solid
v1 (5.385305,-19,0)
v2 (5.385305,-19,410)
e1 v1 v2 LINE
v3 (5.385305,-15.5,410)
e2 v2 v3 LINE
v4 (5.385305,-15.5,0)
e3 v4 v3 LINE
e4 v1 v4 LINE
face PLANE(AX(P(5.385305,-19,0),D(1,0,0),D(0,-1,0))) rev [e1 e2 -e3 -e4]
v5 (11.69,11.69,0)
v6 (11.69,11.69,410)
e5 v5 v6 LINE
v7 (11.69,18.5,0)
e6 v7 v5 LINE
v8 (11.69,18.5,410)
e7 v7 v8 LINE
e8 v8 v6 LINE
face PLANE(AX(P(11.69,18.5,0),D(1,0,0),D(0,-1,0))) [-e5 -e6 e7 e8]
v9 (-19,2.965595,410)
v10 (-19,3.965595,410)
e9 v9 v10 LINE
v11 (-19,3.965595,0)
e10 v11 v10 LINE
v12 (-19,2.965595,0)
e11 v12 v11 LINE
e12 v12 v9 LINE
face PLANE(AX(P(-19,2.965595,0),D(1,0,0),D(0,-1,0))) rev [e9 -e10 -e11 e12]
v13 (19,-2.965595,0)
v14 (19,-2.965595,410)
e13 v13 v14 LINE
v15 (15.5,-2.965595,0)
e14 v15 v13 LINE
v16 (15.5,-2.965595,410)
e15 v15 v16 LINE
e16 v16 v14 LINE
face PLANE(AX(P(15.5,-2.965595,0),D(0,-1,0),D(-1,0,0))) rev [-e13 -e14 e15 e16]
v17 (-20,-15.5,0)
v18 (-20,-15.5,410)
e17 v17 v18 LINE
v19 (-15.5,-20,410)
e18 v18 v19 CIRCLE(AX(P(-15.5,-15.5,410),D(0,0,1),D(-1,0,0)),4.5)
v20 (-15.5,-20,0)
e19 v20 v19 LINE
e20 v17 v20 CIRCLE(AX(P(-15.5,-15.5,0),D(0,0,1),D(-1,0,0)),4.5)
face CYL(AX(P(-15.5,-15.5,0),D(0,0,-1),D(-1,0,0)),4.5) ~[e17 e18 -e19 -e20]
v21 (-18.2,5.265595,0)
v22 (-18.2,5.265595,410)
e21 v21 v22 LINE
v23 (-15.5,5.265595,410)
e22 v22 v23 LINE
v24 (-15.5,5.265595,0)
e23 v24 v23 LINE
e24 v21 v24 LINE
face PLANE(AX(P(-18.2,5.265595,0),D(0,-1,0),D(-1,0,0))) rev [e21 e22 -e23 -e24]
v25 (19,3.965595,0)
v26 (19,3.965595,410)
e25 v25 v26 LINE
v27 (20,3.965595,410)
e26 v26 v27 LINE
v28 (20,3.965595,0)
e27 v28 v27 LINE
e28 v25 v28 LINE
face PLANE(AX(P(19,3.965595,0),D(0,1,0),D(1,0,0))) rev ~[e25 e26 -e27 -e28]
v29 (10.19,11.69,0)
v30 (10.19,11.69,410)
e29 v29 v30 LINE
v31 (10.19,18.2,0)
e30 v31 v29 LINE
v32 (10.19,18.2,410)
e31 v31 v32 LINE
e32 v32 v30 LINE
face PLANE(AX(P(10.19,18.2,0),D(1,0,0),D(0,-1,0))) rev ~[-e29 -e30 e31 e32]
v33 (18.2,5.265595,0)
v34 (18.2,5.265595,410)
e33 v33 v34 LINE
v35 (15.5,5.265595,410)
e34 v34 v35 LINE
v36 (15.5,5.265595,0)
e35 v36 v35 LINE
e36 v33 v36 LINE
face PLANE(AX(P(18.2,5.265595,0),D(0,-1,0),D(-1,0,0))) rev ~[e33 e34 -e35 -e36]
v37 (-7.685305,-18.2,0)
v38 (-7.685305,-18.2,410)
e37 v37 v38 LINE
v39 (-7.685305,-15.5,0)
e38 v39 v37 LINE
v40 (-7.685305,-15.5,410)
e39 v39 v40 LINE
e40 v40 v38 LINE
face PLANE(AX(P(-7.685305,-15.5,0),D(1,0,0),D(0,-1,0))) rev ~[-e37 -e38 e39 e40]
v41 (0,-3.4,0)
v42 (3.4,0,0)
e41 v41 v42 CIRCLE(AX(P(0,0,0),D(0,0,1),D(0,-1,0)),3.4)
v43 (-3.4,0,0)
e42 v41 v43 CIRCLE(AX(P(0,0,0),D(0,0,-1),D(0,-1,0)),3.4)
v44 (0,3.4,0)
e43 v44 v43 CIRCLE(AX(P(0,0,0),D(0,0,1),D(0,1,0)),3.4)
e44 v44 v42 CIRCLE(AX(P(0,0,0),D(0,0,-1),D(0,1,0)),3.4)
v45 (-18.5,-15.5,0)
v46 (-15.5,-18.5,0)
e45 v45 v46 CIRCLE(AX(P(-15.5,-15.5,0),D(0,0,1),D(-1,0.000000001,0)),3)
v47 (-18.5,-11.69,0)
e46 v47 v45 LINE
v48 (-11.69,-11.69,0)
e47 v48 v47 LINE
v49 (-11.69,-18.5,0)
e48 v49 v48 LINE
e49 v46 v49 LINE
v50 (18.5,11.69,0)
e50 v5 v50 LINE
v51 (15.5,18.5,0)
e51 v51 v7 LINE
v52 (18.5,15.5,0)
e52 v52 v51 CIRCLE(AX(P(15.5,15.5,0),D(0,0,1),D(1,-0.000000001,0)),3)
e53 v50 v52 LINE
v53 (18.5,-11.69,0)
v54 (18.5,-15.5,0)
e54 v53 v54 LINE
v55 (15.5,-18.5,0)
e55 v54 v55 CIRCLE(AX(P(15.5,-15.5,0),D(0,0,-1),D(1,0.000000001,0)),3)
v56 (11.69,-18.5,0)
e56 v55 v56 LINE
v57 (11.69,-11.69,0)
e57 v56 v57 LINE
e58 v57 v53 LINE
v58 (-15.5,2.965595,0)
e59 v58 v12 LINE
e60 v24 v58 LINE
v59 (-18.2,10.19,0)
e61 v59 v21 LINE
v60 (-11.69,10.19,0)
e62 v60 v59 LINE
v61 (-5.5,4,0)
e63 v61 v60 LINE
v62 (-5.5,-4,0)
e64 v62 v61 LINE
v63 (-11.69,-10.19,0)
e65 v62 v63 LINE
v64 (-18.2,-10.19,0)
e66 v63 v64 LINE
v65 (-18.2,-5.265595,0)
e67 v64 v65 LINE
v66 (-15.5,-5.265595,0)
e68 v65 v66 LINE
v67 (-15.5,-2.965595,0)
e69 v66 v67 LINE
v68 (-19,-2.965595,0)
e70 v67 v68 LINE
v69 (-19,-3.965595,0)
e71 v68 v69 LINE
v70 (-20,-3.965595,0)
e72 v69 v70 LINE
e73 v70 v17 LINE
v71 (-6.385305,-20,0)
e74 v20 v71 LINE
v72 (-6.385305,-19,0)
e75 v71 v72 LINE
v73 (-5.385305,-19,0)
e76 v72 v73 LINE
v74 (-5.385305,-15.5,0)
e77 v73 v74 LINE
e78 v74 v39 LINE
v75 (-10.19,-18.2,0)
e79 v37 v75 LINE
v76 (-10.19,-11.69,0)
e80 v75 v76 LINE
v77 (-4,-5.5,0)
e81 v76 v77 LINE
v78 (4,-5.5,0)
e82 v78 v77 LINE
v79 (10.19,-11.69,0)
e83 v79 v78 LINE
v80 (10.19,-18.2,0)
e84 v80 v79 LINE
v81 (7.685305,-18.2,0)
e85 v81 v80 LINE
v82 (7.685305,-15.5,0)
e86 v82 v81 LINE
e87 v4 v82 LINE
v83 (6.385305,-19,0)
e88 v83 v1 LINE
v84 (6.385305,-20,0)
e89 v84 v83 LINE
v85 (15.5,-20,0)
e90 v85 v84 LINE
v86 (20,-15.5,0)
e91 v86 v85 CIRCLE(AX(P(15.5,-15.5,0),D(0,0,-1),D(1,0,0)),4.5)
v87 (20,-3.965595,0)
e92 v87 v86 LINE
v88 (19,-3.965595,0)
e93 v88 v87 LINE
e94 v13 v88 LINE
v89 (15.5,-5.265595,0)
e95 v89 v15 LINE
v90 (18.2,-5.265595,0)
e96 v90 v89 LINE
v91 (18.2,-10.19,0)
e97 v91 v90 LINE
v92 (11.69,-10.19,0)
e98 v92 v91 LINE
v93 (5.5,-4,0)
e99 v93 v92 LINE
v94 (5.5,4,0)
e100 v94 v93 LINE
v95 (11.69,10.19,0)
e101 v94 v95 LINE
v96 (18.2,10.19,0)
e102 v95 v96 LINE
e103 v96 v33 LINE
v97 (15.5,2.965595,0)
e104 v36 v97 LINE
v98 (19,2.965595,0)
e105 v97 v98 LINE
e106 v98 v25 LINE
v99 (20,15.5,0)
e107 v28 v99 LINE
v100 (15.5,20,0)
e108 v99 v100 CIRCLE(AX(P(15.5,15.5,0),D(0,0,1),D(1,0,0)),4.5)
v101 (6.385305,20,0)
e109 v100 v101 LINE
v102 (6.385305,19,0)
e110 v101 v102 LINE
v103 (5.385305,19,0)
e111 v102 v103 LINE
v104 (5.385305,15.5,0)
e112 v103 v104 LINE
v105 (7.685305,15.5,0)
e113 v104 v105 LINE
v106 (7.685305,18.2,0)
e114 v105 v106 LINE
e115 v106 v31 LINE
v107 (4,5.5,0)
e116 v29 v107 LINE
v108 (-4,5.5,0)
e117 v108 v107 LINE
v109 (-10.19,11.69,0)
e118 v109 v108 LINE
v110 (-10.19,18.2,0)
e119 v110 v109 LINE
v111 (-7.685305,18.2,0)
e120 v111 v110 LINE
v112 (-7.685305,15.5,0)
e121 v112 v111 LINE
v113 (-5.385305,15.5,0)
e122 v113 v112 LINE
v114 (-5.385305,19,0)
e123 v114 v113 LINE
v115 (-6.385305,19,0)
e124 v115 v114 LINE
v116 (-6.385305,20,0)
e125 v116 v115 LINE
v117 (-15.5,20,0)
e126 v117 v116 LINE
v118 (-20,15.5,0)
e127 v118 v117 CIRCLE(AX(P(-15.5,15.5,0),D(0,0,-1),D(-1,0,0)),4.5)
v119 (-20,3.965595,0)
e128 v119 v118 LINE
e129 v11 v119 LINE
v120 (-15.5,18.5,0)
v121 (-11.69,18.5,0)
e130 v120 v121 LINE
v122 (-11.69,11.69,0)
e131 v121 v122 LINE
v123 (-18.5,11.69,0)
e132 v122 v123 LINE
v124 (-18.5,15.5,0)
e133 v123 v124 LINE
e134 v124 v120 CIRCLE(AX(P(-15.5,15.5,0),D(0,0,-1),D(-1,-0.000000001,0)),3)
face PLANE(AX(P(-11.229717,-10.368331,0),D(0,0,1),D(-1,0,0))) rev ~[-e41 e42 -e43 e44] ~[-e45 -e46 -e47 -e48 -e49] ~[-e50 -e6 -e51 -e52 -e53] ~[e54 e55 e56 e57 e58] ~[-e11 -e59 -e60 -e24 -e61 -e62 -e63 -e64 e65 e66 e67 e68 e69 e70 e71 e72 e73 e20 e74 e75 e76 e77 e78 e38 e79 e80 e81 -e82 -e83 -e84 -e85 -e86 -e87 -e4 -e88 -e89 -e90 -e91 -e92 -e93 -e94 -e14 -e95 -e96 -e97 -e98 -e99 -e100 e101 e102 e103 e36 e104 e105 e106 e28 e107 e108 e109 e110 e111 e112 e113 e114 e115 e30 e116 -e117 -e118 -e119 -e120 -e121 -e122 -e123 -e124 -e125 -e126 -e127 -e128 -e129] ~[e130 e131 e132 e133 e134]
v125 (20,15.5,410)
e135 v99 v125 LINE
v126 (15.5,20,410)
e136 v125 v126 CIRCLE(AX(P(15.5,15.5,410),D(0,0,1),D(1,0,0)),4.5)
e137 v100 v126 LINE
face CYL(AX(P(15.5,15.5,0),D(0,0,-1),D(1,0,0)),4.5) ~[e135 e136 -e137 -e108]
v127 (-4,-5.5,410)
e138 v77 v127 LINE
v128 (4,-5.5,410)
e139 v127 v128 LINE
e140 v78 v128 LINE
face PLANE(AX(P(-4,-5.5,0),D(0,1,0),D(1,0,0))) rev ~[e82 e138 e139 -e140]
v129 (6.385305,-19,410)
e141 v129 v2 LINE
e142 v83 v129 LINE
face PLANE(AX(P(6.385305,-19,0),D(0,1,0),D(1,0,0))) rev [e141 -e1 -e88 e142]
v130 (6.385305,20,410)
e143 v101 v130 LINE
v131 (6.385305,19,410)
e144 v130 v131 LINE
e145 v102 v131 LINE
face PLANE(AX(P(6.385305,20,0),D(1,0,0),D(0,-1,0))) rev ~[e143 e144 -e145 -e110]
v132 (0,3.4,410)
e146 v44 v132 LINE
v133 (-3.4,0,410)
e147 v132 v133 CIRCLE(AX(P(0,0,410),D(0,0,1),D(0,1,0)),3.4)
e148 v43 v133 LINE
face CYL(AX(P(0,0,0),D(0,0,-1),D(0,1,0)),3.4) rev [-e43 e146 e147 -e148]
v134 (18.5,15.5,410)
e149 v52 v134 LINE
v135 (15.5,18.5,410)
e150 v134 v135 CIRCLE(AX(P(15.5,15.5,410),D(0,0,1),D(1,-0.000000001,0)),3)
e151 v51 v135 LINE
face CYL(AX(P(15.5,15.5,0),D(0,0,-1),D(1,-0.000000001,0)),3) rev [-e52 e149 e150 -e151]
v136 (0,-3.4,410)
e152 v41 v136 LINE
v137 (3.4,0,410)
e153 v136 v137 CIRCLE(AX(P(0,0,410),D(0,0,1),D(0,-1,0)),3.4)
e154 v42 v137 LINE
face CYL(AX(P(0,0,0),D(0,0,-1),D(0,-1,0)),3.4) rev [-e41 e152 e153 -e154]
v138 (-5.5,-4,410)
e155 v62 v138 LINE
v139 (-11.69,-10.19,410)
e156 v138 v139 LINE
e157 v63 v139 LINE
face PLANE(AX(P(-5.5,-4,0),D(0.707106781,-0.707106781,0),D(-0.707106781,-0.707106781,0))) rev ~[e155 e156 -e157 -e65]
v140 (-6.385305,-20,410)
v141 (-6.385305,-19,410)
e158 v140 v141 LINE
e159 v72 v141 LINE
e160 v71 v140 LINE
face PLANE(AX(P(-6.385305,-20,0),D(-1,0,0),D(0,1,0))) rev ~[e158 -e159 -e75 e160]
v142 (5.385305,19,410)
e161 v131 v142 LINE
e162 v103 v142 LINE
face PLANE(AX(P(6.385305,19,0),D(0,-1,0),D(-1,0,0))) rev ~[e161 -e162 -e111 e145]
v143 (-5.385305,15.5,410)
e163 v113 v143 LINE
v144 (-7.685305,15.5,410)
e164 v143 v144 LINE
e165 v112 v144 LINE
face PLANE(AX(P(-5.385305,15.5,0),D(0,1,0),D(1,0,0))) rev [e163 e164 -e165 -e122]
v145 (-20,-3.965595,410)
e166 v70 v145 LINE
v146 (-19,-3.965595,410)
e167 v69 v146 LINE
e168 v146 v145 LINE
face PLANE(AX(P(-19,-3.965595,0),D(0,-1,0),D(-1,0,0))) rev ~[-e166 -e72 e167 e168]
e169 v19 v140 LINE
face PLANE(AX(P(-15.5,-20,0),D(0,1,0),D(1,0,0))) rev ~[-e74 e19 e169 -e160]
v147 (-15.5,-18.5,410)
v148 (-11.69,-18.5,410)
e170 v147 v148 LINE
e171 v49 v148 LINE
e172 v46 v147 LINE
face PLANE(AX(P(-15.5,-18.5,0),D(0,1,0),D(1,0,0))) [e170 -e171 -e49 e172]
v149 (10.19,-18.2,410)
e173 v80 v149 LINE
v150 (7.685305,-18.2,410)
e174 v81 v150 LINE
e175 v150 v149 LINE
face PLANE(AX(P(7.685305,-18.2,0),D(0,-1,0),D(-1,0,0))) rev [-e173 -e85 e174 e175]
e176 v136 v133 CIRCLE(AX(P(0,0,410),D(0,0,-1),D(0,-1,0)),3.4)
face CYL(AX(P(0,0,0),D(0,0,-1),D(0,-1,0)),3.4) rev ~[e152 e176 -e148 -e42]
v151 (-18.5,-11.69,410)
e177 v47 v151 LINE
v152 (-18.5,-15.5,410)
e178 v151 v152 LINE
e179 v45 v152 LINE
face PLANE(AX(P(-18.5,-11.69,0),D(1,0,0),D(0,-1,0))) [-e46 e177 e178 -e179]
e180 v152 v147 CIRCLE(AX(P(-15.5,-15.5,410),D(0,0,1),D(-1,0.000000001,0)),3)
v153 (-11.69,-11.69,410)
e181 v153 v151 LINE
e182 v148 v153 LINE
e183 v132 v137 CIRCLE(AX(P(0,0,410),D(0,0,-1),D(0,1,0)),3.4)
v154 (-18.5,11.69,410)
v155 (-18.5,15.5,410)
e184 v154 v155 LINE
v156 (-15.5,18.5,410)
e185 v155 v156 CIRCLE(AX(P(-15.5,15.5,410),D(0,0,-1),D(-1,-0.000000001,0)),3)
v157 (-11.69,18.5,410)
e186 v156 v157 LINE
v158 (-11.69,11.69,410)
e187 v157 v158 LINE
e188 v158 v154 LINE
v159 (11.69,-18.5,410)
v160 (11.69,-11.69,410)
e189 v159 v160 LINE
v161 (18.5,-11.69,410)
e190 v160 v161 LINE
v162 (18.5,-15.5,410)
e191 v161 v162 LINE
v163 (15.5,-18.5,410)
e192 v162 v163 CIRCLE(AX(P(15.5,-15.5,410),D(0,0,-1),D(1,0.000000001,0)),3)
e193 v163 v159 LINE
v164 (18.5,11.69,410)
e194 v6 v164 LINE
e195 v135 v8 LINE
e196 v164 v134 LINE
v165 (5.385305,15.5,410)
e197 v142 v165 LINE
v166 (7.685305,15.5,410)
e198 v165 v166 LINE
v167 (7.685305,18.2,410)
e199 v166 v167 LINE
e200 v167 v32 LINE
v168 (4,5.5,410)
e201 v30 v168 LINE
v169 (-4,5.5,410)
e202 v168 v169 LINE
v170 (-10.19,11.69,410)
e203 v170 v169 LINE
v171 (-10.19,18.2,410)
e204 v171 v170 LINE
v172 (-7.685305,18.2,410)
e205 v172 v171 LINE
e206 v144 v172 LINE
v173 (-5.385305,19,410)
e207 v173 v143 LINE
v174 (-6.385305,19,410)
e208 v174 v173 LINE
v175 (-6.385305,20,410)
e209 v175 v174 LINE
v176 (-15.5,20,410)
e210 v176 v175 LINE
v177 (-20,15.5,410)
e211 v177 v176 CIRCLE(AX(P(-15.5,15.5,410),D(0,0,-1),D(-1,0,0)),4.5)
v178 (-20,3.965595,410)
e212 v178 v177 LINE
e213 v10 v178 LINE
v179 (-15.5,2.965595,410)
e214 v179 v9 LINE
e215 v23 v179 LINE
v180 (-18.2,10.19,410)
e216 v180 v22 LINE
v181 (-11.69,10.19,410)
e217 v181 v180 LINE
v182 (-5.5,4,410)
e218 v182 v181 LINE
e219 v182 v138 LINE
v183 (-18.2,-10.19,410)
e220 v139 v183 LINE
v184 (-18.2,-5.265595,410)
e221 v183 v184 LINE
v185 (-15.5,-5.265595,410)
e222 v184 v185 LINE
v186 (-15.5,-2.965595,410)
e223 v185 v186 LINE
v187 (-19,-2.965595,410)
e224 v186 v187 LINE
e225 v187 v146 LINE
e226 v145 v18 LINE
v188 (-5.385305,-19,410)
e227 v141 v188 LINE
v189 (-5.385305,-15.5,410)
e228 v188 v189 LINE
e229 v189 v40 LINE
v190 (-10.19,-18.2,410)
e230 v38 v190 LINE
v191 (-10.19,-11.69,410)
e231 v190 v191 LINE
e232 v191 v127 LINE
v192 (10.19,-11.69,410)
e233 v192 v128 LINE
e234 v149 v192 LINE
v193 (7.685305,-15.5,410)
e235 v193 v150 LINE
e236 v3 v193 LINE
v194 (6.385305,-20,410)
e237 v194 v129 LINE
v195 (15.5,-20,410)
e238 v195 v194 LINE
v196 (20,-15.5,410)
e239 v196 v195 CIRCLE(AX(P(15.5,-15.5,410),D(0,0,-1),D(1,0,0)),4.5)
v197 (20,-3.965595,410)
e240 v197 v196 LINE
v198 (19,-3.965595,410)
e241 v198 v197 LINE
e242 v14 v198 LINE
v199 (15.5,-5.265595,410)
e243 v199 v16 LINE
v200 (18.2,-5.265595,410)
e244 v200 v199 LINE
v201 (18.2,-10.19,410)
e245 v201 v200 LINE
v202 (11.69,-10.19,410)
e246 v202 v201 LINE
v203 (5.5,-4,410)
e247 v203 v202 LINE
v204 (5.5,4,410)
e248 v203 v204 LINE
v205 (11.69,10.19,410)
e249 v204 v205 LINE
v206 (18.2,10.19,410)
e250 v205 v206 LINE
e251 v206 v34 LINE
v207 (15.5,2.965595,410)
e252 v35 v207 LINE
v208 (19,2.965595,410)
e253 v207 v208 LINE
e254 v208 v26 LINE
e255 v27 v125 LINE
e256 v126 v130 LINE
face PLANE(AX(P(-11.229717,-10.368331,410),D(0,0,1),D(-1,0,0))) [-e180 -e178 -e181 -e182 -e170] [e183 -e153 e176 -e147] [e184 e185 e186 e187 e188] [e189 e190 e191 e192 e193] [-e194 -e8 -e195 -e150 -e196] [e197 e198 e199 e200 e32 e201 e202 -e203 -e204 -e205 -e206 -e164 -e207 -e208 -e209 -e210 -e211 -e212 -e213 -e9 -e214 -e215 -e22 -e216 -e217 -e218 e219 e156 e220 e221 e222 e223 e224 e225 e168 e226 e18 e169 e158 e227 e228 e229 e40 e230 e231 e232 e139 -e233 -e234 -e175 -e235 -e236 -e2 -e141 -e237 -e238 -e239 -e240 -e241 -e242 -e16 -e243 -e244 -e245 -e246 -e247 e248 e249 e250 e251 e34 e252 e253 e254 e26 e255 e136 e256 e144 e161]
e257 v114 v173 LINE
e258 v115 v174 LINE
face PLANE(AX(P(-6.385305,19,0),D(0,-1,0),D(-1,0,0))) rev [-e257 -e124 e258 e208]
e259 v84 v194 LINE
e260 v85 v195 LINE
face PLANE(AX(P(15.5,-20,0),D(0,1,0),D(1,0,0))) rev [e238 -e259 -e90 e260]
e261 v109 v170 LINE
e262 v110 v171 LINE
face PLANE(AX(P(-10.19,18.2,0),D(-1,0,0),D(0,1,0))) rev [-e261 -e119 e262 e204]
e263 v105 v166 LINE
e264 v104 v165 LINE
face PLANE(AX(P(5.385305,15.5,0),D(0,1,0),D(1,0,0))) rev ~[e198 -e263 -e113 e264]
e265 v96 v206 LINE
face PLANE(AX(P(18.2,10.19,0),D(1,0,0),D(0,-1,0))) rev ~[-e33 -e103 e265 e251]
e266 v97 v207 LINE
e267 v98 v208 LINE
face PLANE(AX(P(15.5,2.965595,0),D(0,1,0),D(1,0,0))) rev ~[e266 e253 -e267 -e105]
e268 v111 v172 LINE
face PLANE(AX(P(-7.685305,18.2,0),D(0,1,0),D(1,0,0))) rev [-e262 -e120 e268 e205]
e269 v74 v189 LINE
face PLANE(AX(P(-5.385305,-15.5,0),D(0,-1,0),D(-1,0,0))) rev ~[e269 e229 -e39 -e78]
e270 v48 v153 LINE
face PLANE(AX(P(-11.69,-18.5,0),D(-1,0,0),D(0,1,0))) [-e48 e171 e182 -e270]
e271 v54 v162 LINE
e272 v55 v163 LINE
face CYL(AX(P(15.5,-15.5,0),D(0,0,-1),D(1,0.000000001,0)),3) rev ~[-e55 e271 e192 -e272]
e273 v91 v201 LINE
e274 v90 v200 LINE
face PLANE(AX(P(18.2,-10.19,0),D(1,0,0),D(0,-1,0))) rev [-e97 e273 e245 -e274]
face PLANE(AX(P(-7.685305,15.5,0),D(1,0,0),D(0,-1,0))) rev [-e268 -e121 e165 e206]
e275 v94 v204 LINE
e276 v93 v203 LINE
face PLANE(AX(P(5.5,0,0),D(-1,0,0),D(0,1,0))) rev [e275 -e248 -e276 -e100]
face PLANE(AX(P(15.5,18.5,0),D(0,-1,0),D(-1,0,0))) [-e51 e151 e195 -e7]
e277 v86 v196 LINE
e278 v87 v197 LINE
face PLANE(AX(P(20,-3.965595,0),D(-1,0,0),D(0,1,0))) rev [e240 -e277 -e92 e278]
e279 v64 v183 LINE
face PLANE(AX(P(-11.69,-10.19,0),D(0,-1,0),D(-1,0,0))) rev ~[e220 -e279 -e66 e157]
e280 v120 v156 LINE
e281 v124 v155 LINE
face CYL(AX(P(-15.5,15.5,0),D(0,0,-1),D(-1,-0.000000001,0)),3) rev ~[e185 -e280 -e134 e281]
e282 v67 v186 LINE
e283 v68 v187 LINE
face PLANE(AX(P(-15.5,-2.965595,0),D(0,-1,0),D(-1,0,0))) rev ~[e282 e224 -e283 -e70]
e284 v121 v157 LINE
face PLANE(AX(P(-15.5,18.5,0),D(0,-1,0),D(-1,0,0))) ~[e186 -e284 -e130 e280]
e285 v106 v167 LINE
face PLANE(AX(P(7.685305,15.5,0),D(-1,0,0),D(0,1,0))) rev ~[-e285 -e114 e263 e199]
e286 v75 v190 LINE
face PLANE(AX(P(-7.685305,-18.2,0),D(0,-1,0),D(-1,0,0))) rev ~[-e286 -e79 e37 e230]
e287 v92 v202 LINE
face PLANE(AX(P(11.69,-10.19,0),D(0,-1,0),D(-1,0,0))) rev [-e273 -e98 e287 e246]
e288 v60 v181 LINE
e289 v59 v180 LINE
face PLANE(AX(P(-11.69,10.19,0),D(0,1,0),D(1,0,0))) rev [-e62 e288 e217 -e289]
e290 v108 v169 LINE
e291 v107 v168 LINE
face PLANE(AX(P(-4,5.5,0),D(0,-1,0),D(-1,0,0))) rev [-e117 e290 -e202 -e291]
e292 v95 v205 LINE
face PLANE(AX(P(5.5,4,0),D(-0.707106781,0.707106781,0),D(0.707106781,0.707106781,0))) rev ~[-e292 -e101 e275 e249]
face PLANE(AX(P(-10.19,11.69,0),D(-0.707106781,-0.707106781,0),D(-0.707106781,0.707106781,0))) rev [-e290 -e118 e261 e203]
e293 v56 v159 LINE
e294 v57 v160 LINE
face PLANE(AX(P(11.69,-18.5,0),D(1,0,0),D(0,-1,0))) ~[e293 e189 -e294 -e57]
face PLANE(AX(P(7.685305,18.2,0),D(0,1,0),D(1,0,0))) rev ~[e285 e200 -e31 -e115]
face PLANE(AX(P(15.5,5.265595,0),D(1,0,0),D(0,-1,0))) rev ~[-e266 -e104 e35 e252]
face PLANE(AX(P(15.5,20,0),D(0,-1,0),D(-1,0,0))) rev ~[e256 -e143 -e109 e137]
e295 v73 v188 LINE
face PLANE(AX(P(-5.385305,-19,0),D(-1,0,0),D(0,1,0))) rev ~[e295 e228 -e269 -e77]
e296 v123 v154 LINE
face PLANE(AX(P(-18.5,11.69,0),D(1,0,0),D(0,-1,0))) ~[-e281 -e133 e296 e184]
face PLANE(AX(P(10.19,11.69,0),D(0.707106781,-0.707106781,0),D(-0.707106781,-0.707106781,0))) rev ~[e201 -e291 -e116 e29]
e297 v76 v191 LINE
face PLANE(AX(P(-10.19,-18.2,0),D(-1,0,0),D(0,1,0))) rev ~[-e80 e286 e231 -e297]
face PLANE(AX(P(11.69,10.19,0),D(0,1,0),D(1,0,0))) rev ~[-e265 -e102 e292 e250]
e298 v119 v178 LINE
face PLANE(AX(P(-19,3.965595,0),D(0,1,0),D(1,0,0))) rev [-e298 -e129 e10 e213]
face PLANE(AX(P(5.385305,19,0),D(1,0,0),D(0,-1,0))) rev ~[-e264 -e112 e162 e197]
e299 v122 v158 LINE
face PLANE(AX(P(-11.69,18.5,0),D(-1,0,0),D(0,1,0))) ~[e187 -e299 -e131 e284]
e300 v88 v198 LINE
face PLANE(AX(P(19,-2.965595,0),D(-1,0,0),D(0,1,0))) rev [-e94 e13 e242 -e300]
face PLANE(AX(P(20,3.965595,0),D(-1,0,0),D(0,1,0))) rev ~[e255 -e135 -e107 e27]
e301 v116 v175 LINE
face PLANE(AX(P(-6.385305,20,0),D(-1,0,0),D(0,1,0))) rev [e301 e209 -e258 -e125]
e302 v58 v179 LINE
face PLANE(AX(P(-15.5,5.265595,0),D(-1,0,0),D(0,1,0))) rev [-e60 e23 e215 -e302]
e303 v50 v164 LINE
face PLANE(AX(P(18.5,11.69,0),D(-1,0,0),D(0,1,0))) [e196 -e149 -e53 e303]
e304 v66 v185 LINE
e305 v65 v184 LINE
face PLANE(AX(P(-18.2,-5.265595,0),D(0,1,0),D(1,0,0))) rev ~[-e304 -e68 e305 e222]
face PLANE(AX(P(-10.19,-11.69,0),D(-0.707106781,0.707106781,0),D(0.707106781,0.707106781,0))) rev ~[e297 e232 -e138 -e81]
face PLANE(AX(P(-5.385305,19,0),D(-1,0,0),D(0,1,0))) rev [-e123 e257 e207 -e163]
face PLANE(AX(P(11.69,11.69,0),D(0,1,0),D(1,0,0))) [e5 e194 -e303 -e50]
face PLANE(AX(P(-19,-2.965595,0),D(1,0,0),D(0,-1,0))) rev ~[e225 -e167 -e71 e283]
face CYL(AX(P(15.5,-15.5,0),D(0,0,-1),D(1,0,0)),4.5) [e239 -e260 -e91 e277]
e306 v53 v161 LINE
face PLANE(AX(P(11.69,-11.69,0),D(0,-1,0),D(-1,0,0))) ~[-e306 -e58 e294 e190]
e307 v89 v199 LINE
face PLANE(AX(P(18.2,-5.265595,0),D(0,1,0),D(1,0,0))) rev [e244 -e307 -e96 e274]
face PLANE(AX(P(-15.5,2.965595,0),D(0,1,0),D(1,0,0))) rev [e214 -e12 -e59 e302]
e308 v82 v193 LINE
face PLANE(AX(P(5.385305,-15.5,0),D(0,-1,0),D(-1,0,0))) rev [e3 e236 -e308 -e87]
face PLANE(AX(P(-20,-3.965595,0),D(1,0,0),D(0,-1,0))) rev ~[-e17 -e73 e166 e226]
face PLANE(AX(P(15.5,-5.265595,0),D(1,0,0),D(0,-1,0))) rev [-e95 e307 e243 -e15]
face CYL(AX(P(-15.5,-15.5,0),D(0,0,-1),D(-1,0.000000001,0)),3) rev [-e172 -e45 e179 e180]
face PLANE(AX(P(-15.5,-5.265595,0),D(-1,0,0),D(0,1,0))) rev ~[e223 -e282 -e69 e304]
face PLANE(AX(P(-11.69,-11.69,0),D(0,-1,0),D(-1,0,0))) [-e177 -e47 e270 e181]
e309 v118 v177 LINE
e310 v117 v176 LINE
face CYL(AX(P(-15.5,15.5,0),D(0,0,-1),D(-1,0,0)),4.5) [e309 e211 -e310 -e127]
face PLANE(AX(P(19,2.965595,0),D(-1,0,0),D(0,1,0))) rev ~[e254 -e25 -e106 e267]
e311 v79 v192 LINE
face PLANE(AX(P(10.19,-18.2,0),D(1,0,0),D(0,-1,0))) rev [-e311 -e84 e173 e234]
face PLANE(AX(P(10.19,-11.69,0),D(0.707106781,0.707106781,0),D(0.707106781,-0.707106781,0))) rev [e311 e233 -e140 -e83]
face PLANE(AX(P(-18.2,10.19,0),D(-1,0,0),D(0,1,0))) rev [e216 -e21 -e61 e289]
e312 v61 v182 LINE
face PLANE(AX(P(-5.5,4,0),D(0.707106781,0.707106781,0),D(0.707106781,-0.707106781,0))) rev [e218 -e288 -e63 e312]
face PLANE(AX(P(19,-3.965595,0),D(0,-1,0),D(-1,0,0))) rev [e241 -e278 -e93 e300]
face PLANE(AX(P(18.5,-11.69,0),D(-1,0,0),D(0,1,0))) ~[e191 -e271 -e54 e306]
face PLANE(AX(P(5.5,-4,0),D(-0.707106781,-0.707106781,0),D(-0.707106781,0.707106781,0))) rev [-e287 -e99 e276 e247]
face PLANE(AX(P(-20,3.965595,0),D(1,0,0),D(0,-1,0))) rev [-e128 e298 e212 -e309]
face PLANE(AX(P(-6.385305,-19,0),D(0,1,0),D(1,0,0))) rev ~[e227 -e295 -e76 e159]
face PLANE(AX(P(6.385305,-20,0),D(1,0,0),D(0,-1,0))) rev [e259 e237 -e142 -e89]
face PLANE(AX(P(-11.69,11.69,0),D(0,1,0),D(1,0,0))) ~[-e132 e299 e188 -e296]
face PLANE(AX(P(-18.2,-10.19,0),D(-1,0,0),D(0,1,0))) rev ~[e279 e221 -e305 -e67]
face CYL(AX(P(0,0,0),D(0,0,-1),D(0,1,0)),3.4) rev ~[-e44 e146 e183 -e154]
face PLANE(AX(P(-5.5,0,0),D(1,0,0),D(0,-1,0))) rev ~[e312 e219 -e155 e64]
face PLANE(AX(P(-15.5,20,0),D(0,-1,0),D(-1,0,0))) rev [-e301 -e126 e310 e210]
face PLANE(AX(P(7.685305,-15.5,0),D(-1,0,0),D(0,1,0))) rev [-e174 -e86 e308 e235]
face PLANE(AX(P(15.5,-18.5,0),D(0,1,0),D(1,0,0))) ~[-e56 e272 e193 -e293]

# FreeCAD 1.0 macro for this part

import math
import FreeCAD as App
import Part
import Sketcher

V = App.Vector
Q = App.Units.Quantity

doc = App.newDocument("Part")
body = doc.addObject("PartDesign::Body", "Body")

# Sketch on XY plane
sketch1 = body.newObject("Sketcher::SketchObject", "Sketch")
sketch1.AttachmentSupport = (doc.getObject("XY_Plane"), [""])
sketch1.MapMode = "FlatFace"
sketch1.addGeometry(Part.LineSegment(V(3.4, 0, 0), V(5.5, 0, 0)), False)
sketch1.addGeometry(Part.LineSegment(V(5.5, 0, 0), V(5.5, 4, 0)), False)
sketch1.addGeometry(Part.LineSegment(V(5.5, 4, 0), V(11.7, 10.2, 0)), False)
sketch1.addGeometry(Part.LineSegment(V(11.7, 10.2, 0), V(18.2, 10.2, 0)), False)
sketch1.addGeometry(Part.LineSegment(V(18.2, 10.2, 0), V(18.2, 5.3, 0)), False)
sketch1.addGeometry(Part.LineSegment(V(18.2, 5.3, 0), V(15.5, 5.3, 0)), False)
sketch1.addGeometry(Part.LineSegment(V(15.5, 5.3, 0), V(15.5, 3, 0)), False)
sketch1.addGeometry(Part.LineSegment(V(15.5, 3, 0), V(19, 3, 0)), False)
sketch1.addGeometry(Part.LineSegment(V(19, 3, 0), V(19, 4, 0)), False)
sketch1.addGeometry(Part.LineSegment(V(19, 4, 0), V(20, 4, 0)), False)
sketch1.addGeometry(Part.LineSegment(V(20, 4, 0), V(20, 15.5, 0)), False)
sketch1.addGeometry(Part.ArcOfCircle(Part.Circle(V(15.5, 15.5, 0), V(0, 0, 1), 4.5), math.radians(0), math.radians(90)), False)
sketch1.addGeometry(Part.LineSegment(V(15.5, 20, 0), V(6.4, 20, 0)), False)
sketch1.addGeometry(Part.LineSegment(V(6.4, 20, 0), V(6.4, 19, 0)), False)
sketch1.addGeometry(Part.LineSegment(V(6.4, 19, 0), V(5.4, 19, 0)), False)
sketch1.addGeometry(Part.LineSegment(V(5.4, 19, 0), V(5.4, 15.5, 0)), False)
sketch1.addGeometry(Part.LineSegment(V(5.4, 15.5, 0), V(7.7, 15.5, 0)), False)
sketch1.addGeometry(Part.LineSegment(V(7.7, 15.5, 0), V(7.7, 18.2, 0)), False)
sketch1.addGeometry(Part.LineSegment(V(7.7, 18.2, 0), V(10.2, 18.2, 0)), False)
sketch1.addGeometry(Part.LineSegment(V(10.2, 18.2, 0), V(10.2, 11.7, 0)), False)
sketch1.addGeometry(Part.LineSegment(V(10.2, 11.7, 0), V(4, 5.5, 0)), False)
sketch1.addGeometry(Part.LineSegment(V(4, 5.5, 0), V(0, 5.5, 0)), False)
sketch1.addGeometry(Part.LineSegment(V(0, 5.5, 0), V(0, 3.4, 0)), False)
sketch1.addGeometry(Part.ArcOfCircle(Part.Circle(V(0, 0, 0), V(0, 0, 1), 3.4), math.radians(0), math.radians(90)), False)
sketch1.addGeometry(Part.LineSegment(V(18.5, 15.5, 0), V(18.5, 11.7, 0)), False)
sketch1.addGeometry(Part.LineSegment(V(18.5, 11.7, 0), V(11.7, 11.7, 0)), False)
sketch1.addGeometry(Part.LineSegment(V(11.7, 11.7, 0), V(11.7, 18.5, 0)), False)
sketch1.addGeometry(Part.LineSegment(V(11.7, 18.5, 0), V(15.5, 18.5, 0)), False)
sketch1.addGeometry(Part.ArcOfCircle(Part.Circle(V(15.5, 15.5, 0), V(0, 0, 1), 3), math.radians(0), math.radians(90)), False)
sketch1.addConstraint(Sketcher.Constraint("Coincident", 0, 2, 1, 1))
sketch1.addConstraint(Sketcher.Constraint("Coincident", 1, 2, 2, 1))
sketch1.addConstraint(Sketcher.Constraint("Coincident", 2, 2, 3, 1))
sketch1.addConstraint(Sketcher.Constraint("Coincident", 3, 2, 4, 1))
sketch1.addConstraint(Sketcher.Constraint("Coincident", 4, 2, 5, 1))
sketch1.addConstraint(Sketcher.Constraint("Coincident", 5, 2, 6, 1))
sketch1.addConstraint(Sketcher.Constraint("Coincident", 6, 2, 7, 1))
sketch1.addConstraint(Sketcher.Constraint("Coincident", 7, 2, 8, 1))
sketch1.addConstraint(Sketcher.Constraint("Coincident", 8, 2, 9, 1))
sketch1.addConstraint(Sketcher.Constraint("Coincident", 9, 2, 10, 1))
sketch1.addConstraint(Sketcher.Constraint("Tangent", 10, 2, 11, 1))
sketch1.addConstraint(Sketcher.Constraint("Tangent", 11, 2, 12, 1))
sketch1.addConstraint(Sketcher.Constraint("Coincident", 12, 2, 13, 1))
sketch1.addConstraint(Sketcher.Constraint("Coincident", 13, 2, 14, 1))
sketch1.addConstraint(Sketcher.Constraint("Coincident", 14, 2, 15, 1))
sketch1.addConstraint(Sketcher.Constraint("Coincident", 15, 2, 16, 1))
sketch1.addConstraint(Sketcher.Constraint("Coincident", 16, 2, 17, 1))
sketch1.addConstraint(Sketcher.Constraint("Coincident", 17, 2, 18, 1))
sketch1.addConstraint(Sketcher.Constraint("Coincident", 18, 2, 19, 1))
sketch1.addConstraint(Sketcher.Constraint("Coincident", 19, 2, 20, 1))
sketch1.addConstraint(Sketcher.Constraint("Coincident", 20, 2, 21, 1))
sketch1.addConstraint(Sketcher.Constraint("Coincident", 21, 2, 22, 1))
sketch1.addConstraint(Sketcher.Constraint("Coincident", 22, 2, 23, 2))
sketch1.addConstraint(Sketcher.Constraint("Coincident", 23, 1, 0, 1))
sketch1.addConstraint(Sketcher.Constraint("Coincident", 24, 2, 25, 1))
sketch1.addConstraint(Sketcher.Constraint("Coincident", 25, 2, 26, 1))
sketch1.addConstraint(Sketcher.Constraint("Coincident", 26, 2, 27, 1))
sketch1.addConstraint(Sketcher.Constraint("Tangent", 27, 2, 28, 2))
sketch1.addConstraint(Sketcher.Constraint("Tangent", 28, 1, 24, 1))
sketch1.addConstraint(Sketcher.Constraint("Horizontal", 0))
sketch1.addConstraint(Sketcher.Constraint("Vertical", 1))
sketch1.addConstraint(Sketcher.Constraint("Horizontal", 3))
sketch1.addConstraint(Sketcher.Constraint("Vertical", 4))
sketch1.addConstraint(Sketcher.Constraint("Horizontal", 5))
sketch1.addConstraint(Sketcher.Constraint("Vertical", 6))
sketch1.addConstraint(Sketcher.Constraint("Horizontal", 7))
sketch1.addConstraint(Sketcher.Constraint("Vertical", 8))
sketch1.addConstraint(Sketcher.Constraint("Horizontal", 9))
sketch1.addConstraint(Sketcher.Constraint("Vertical", 10))
sketch1.addConstraint(Sketcher.Constraint("Horizontal", 12))
sketch1.addConstraint(Sketcher.Constraint("Vertical", 13))
sketch1.addConstraint(Sketcher.Constraint("Horizontal", 14))
sketch1.addConstraint(Sketcher.Constraint("Vertical", 15))
sketch1.addConstraint(Sketcher.Constraint("Horizontal", 16))
sketch1.addConstraint(Sketcher.Constraint("Vertical", 17))
sketch1.addConstraint(Sketcher.Constraint("Horizontal", 18))
sketch1.addConstraint(Sketcher.Constraint("Vertical", 19))
sketch1.addConstraint(Sketcher.Constraint("Horizontal", 21))
sketch1.addConstraint(Sketcher.Constraint("Vertical", 22))
sketch1.addConstraint(Sketcher.Constraint("Vertical", 24))
sketch1.addConstraint(Sketcher.Constraint("Horizontal", 25))
sketch1.addConstraint(Sketcher.Constraint("Vertical", 26))
sketch1.addConstraint(Sketcher.Constraint("Horizontal", 27))
sketch1.addConstraint(Sketcher.Constraint("Coincident", 23, 3, -1, 1))
sketch1.addConstraint(Sketcher.Constraint("Coincident", 28, 3, 11, 3))
sketch1.addConstraint(Sketcher.Constraint("PointOnObject", 0, 2, -1))
sketch1.addConstraint(Sketcher.Constraint("PointOnObject", 21, 2, -2))
sketch1.addConstraint(Sketcher.Constraint("Parallel", 2, 20))
sketch1.addConstraint(Sketcher.Constraint("Horizontal", 10, 2, 15, 2))
sketch1.addConstraint(Sketcher.Constraint("Horizontal", 19, 2, 24, 2))
sketch1.addConstraint(Sketcher.Constraint("Vertical", 28, 3, 5, 2))
sketch1.addConstraint(Sketcher.Constraint("Vertical", 2, 2, 25, 2))
sketch1.addConstraint(Sketcher.Constraint("Equal", 9, 14))
sketch1.addConstraint(Sketcher.Constraint("Equal", 21, 1))
sketch1.addConstraint(Sketcher.Constraint("Equal", 16, 6))
sketch1.addConstraint(Sketcher.Constraint("Equal", 14, 8))
sketch1.addConstraint(Sketcher.Constraint("Equal", 8, 13))
sketch1.addConstraint(Sketcher.Constraint("Equal", 5, 17))
sketch1.addConstraint(Sketcher.Constraint("Equal", 3, 19))
sketch1.addConstraint(Sketcher.Constraint("Equal", 0, 22))
sketch1.addConstraint(Sketcher.Constraint("Equal", 2, 20))
sketch1.addConstraint(Sketcher.Constraint("Radius", 28, 3.0))
sketch1.addConstraint(Sketcher.Constraint("Radius", 11, 4.5))
sketch1.addConstraint(Sketcher.Constraint("Radius", 23, 3.4))
sketch1.addConstraint(Sketcher.Constraint("DistanceX", 9, 1, 9, 2, 1.0))
sketch1.addConstraint(Sketcher.Constraint("DistanceX", 21, 2, 21, 1, 4.0))
sketch1.addConstraint(Sketcher.Constraint("Angle", 2, Q("45 deg")))
sketch1.addConstraint(Sketcher.Constraint("DistanceX", 0, 1, 0, 2, 2.1))
sketch1.addConstraint(Sketcher.Constraint("DistanceX", 5, 2, 5, 1, 2.7))
sketch1.addConstraint(Sketcher.Constraint("DistanceX", 16, 1, 16, 2, 2.3))
sketch1.addConstraint(Sketcher.Constraint("DistanceX", -1, 1, 7, 2, 19.0))
sketch1.addConstraint(Sketcher.Constraint("DistanceX", 3, 1, 3, 2, 6.51))
sketch1.addConstraint(Sketcher.Constraint("DistanceX", 12, 2, 12, 1, 9.114695))
sketch1.addConstraint(Sketcher.Constraint("DistanceY", 4, 2, 4, 1, 4.924405))
pad1 = body.newObject("PartDesign::Pad", "Pad")
pad1.Profile = sketch1
pad1.Length = 410
doc.recompute()

mirrored = body.newObject("PartDesign::Mirrored", "Mirrored")
mirrored.Originals = [pad1]
mirrored.MirrorPlane = (doc.getObject("XZ_Plane"), [""])
body.Tip = mirrored
doc.recompute()

mirrored2 = body.newObject("PartDesign::Mirrored", "Mirrored001")
mirrored2.Originals = [pad1]
mirrored2.MirrorPlane = (doc.getObject("YZ_Plane"), [""])
body.Tip = mirrored2

# Sketch on XY plane
sketch2 = body.newObject("Sketcher::SketchObject", "Sketch001")
sketch2.AttachmentSupport = (doc.getObject("XY_Plane"), [""])
sketch2.MapMode = "FlatFace"
sketch2.addGeometry(Part.LineSegment(V(-3.4, 0, 0), V(-5.5, 0, 0)), False)
sketch2.addGeometry(Part.LineSegment(V(-5.5, 0, 0), V(-5.5, -4, 0)), False)
sketch2.addGeometry(Part.LineSegment(V(-5.5, -4, 0), V(-11.7, -10.2, 0)), False)
sketch2.addGeometry(Part.LineSegment(V(-11.7, -10.2, 0), V(-18.2, -10.2, 0)), False)
sketch2.addGeometry(Part.LineSegment(V(-18.2, -10.2, 0), V(-18.2, -5.3, 0)), False)
sketch2.addGeometry(Part.LineSegment(V(-18.2, -5.3, 0), V(-15.5, -5.3, 0)), False)
sketch2.addGeometry(Part.LineSegment(V(-15.5, -5.3, 0), V(-15.5, -3, 0)), False)
sketch2.addGeometry(Part.LineSegment(V(-15.5, -3, 0), V(-19, -3, 0)), False)
sketch2.addGeometry(Part.LineSegment(V(-19, -3, 0), V(-19, -4, 0)), False)
sketch2.addGeometry(Part.LineSegment(V(-19, -4, 0), V(-20, -4, 0)), False)
sketch2.addGeometry(Part.LineSegment(V(-20, -4, 0), V(-20, -15.5, 0)), False)
sketch2.addGeometry(Part.ArcOfCircle(Part.Circle(V(-15.5, -15.5, 0), V(0, 0, 1), 4.5), math.radians(-180), math.radians(-90)), False)
sketch2.addGeometry(Part.LineSegment(V(-15.5, -20, 0), V(-6.4, -20, 0)), False)
sketch2.addGeometry(Part.LineSegment(V(-6.4, -20, 0), V(-6.4, -19, 0)), False)
sketch2.addGeometry(Part.LineSegment(V(-6.4, -19, 0), V(-5.4, -19, 0)), False)
sketch2.addGeometry(Part.LineSegment(V(-5.4, -19, 0), V(-5.4, -15.5, 0)), False)
sketch2.addGeometry(Part.LineSegment(V(-5.4, -15.5, 0), V(-7.7, -15.5, 0)), False)
sketch2.addGeometry(Part.LineSegment(V(-7.7, -15.5, 0), V(-7.7, -18.2, 0)), False)
sketch2.addGeometry(Part.LineSegment(V(-7.7, -18.2, 0), V(-10.2, -18.2, 0)), False)
sketch2.addGeometry(Part.LineSegment(V(-10.2, -18.2, 0), V(-10.2, -11.7, 0)), False)
sketch2.addGeometry(Part.LineSegment(V(-10.2, -11.7, 0), V(-4, -5.5, 0)), False)
sketch2.addGeometry(Part.LineSegment(V(-4, -5.5, 0), V(0, -5.5, 0)), False)
sketch2.addGeometry(Part.LineSegment(V(0, -5.5, 0), V(0, -3.4, 0)), False)
sketch2.addGeometry(Part.ArcOfCircle(Part.Circle(V(0, 0, 0), V(0, 0, 1), 3.4), math.radians(180), math.radians(270)), False)
sketch2.addGeometry(Part.LineSegment(V(-18.5, -15.5, 0), V(-18.5, -11.7, 0)), False)
sketch2.addGeometry(Part.LineSegment(V(-18.5, -11.7, 0), V(-11.7, -11.7, 0)), False)
sketch2.addGeometry(Part.LineSegment(V(-11.7, -11.7, 0), V(-11.7, -18.5, 0)), False)
sketch2.addGeometry(Part.LineSegment(V(-11.7, -18.5, 0), V(-15.5, -18.5, 0)), False)
sketch2.addGeometry(Part.ArcOfCircle(Part.Circle(V(-15.5, -15.5, 0), V(0, 0, 1), 3), math.radians(180), math.radians(270)), False)
sketch2.addConstraint(Sketcher.Constraint("Coincident", 0, 2, 1, 1))
sketch2.addConstraint(Sketcher.Constraint("Coincident", 1, 2, 2, 1))
sketch2.addConstraint(Sketcher.Constraint("Coincident", 2, 2, 3, 1))
sketch2.addConstraint(Sketcher.Constraint("Coincident", 3, 2, 4, 1))
sketch2.addConstraint(Sketcher.Constraint("Coincident", 4, 2, 5, 1))
sketch2.addConstraint(Sketcher.Constraint("Coincident", 5, 2, 6, 1))
sketch2.addConstraint(Sketcher.Constraint("Coincident", 6, 2, 7, 1))
sketch2.addConstraint(Sketcher.Constraint("Coincident", 7, 2, 8, 1))
sketch2.addConstraint(Sketcher.Constraint("Coincident", 8, 2, 9, 1))
sketch2.addConstraint(Sketcher.Constraint("Coincident", 9, 2, 10, 1))
sketch2.addConstraint(Sketcher.Constraint("Tangent", 10, 2, 11, 1))
sketch2.addConstraint(Sketcher.Constraint("Tangent", 11, 2, 12, 1))
sketch2.addConstraint(Sketcher.Constraint("Coincident", 12, 2, 13, 1))
sketch2.addConstraint(Sketcher.Constraint("Coincident", 13, 2, 14, 1))
sketch2.addConstraint(Sketcher.Constraint("Coincident", 14, 2, 15, 1))
sketch2.addConstraint(Sketcher.Constraint("Coincident", 15, 2, 16, 1))
sketch2.addConstraint(Sketcher.Constraint("Coincident", 16, 2, 17, 1))
sketch2.addConstraint(Sketcher.Constraint("Coincident", 17, 2, 18, 1))
sketch2.addConstraint(Sketcher.Constraint("Coincident", 18, 2, 19, 1))
sketch2.addConstraint(Sketcher.Constraint("Coincident", 19, 2, 20, 1))
sketch2.addConstraint(Sketcher.Constraint("Coincident", 20, 2, 21, 1))
sketch2.addConstraint(Sketcher.Constraint("Coincident", 21, 2, 22, 1))
sketch2.addConstraint(Sketcher.Constraint("Coincident", 22, 2, 23, 2))
sketch2.addConstraint(Sketcher.Constraint("Coincident", 23, 1, 0, 1))
sketch2.addConstraint(Sketcher.Constraint("Coincident", 24, 2, 25, 1))
sketch2.addConstraint(Sketcher.Constraint("Coincident", 25, 2, 26, 1))
sketch2.addConstraint(Sketcher.Constraint("Coincident", 26, 2, 27, 1))
sketch2.addConstraint(Sketcher.Constraint("Tangent", 27, 2, 28, 2))
sketch2.addConstraint(Sketcher.Constraint("Tangent", 28, 1, 24, 1))
sketch2.addConstraint(Sketcher.Constraint("Horizontal", 0))
sketch2.addConstraint(Sketcher.Constraint("Vertical", 1))
sketch2.addConstraint(Sketcher.Constraint("Horizontal", 3))
sketch2.addConstraint(Sketcher.Constraint("Vertical", 4))
sketch2.addConstraint(Sketcher.Constraint("Horizontal", 5))
sketch2.addConstraint(Sketcher.Constraint("Vertical", 6))
sketch2.addConstraint(Sketcher.Constraint("Horizontal", 7))
sketch2.addConstraint(Sketcher.Constraint("Vertical", 8))
sketch2.addConstraint(Sketcher.Constraint("Horizontal", 9))
sketch2.addConstraint(Sketcher.Constraint("Vertical", 10))
sketch2.addConstraint(Sketcher.Constraint("Horizontal", 12))
sketch2.addConstraint(Sketcher.Constraint("Vertical", 13))
sketch2.addConstraint(Sketcher.Constraint("Horizontal", 14))
sketch2.addConstraint(Sketcher.Constraint("Vertical", 15))
sketch2.addConstraint(Sketcher.Constraint("Horizontal", 16))
sketch2.addConstraint(Sketcher.Constraint("Vertical", 17))
sketch2.addConstraint(Sketcher.Constraint("Horizontal", 18))
sketch2.addConstraint(Sketcher.Constraint("Vertical", 19))
sketch2.addConstraint(Sketcher.Constraint("Horizontal", 21))
sketch2.addConstraint(Sketcher.Constraint("Vertical", 22))
sketch2.addConstraint(Sketcher.Constraint("Vertical", 24))
sketch2.addConstraint(Sketcher.Constraint("Horizontal", 25))
sketch2.addConstraint(Sketcher.Constraint("Vertical", 26))
sketch2.addConstraint(Sketcher.Constraint("Horizontal", 27))
sketch2.addConstraint(Sketcher.Constraint("Coincident", 23, 3, -1, 1))
sketch2.addConstraint(Sketcher.Constraint("Coincident", 28, 3, 11, 3))
sketch2.addConstraint(Sketcher.Constraint("PointOnObject", 0, 2, -1))
sketch2.addConstraint(Sketcher.Constraint("PointOnObject", 21, 2, -2))
sketch2.addConstraint(Sketcher.Constraint("Parallel", 2, 20))
sketch2.addConstraint(Sketcher.Constraint("Horizontal", 10, 2, 15, 2))
sketch2.addConstraint(Sketcher.Constraint("Horizontal", 19, 2, 24, 2))
sketch2.addConstraint(Sketcher.Constraint("Vertical", 28, 3, 5, 2))
sketch2.addConstraint(Sketcher.Constraint("Vertical", 2, 2, 25, 2))
sketch2.addConstraint(Sketcher.Constraint("Equal", 9, 14))
sketch2.addConstraint(Sketcher.Constraint("Equal", 21, 1))
sketch2.addConstraint(Sketcher.Constraint("Equal", 16, 6))
sketch2.addConstraint(Sketcher.Constraint("Equal", 14, 8))
sketch2.addConstraint(Sketcher.Constraint("Equal", 8, 13))
sketch2.addConstraint(Sketcher.Constraint("Equal", 5, 17))
sketch2.addConstraint(Sketcher.Constraint("Equal", 3, 19))
sketch2.addConstraint(Sketcher.Constraint("Equal", 0, 22))
sketch2.addConstraint(Sketcher.Constraint("Equal", 2, 20))
sketch2.addConstraint(Sketcher.Constraint("Radius", 28, 3.0))
sketch2.addConstraint(Sketcher.Constraint("Radius", 11, 4.5))
sketch2.addConstraint(Sketcher.Constraint("Radius", 23, 3.4))
sketch2.addConstraint(Sketcher.Constraint("DistanceX", 9, 2, 9, 1, 1.0))
sketch2.addConstraint(Sketcher.Constraint("DistanceX", 21, 1, 21, 2, 4.0))
sketch2.addConstraint(Sketcher.Constraint("Angle", 2, Q("-135 deg")))
sketch2.addConstraint(Sketcher.Constraint("DistanceX", 0, 2, 0, 1, 2.1))
sketch2.addConstraint(Sketcher.Constraint("DistanceX", 5, 1, 5, 2, 2.7))
sketch2.addConstraint(Sketcher.Constraint("DistanceX", 16, 2, 16, 1, 2.3))
sketch2.addConstraint(Sketcher.Constraint("DistanceX", 7, 2, -1, 1, 19.0))
sketch2.addConstraint(Sketcher.Constraint("DistanceX", 3, 2, 3, 1, 6.51))
sketch2.addConstraint(Sketcher.Constraint("DistanceX", 12, 1, 12, 2, 9.114695))
sketch2.addConstraint(Sketcher.Constraint("DistanceY", 4, 1, 4, 2, 4.924405))
pad2 = body.newObject("PartDesign::Pad", "Pad001")
pad2.Profile = sketch2
pad2.Length = 410

# Sketch on XY plane
sketch3 = body.newObject("Sketcher::SketchObject", "Sketch002")
sketch3.AttachmentSupport = (doc.getObject("XY_Plane"), [""])
sketch3.MapMode = "FlatFace"
sketch3.addGeometry(Part.LineSegment(V(5.5, 0, 0), V(3.4, 0, 0)), False)
sketch3.addGeometry(Part.ArcOfCircle(Part.Circle(V(0, 0, 0), V(0, 0, 1), 3.4), math.radians(-90), math.radians(0)), False)
sketch3.addGeometry(Part.LineSegment(V(0, -3.4, 0), V(0, -5.5, 0)), False)
sketch3.addGeometry(Part.LineSegment(V(0, -5.5, 0), V(4, -5.5, 0)), False)
sketch3.addGeometry(Part.LineSegment(V(4, -5.5, 0), V(10.2, -11.7, 0)), False)
sketch3.addGeometry(Part.LineSegment(V(10.2, -11.7, 0), V(10.2, -18.2, 0)), False)
sketch3.addGeometry(Part.LineSegment(V(10.2, -18.2, 0), V(7.7, -18.2, 0)), False)
sketch3.addGeometry(Part.LineSegment(V(7.7, -18.2, 0), V(7.7, -15.5, 0)), False)
sketch3.addGeometry(Part.LineSegment(V(7.7, -15.5, 0), V(5.4, -15.5, 0)), False)
sketch3.addGeometry(Part.LineSegment(V(5.4, -15.5, 0), V(5.4, -19, 0)), False)
sketch3.addGeometry(Part.LineSegment(V(5.4, -19, 0), V(6.4, -19, 0)), False)
sketch3.addGeometry(Part.LineSegment(V(6.4, -19, 0), V(6.4, -20, 0)), False)
sketch3.addGeometry(Part.LineSegment(V(6.4, -20, 0), V(15.5, -20, 0)), False)
sketch3.addGeometry(Part.ArcOfCircle(Part.Circle(V(15.5, -15.5, 0), V(0, 0, 1), 4.5), math.radians(-90), math.radians(0)), False)
sketch3.addGeometry(Part.LineSegment(V(20, -15.5, 0), V(20, -4, 0)), False)
sketch3.addGeometry(Part.LineSegment(V(20, -4, 0), V(19, -4, 0)), False)
sketch3.addGeometry(Part.LineSegment(V(19, -4, 0), V(19, -3, 0)), False)
sketch3.addGeometry(Part.LineSegment(V(19, -3, 0), V(15.5, -3, 0)), False)
sketch3.addGeometry(Part.LineSegment(V(15.5, -3, 0), V(15.5, -5.3, 0)), False)
sketch3.addGeometry(Part.LineSegment(V(15.5, -5.3, 0), V(18.2, -5.3, 0)), False)
sketch3.addGeometry(Part.LineSegment(V(18.2, -5.3, 0), V(18.2, -10.2, 0)), False)
sketch3.addGeometry(Part.LineSegment(V(18.2, -10.2, 0), V(11.7, -10.2, 0)), False)
sketch3.addGeometry(Part.LineSegment(V(11.7, -10.2, 0), V(5.5, -4, 0)), False)
sketch3.addGeometry(Part.LineSegment(V(5.5, -4, 0), V(5.5, 0, 0)), False)
sketch3.addGeometry(Part.LineSegment(V(18.5, -11.7, 0), V(18.5, -15.5, 0)), False)
sketch3.addGeometry(Part.ArcOfCircle(Part.Circle(V(15.5, -15.5, 0), V(0, 0, 1), 3), math.radians(-90), math.radians(0)), False)
sketch3.addGeometry(Part.LineSegment(V(15.5, -18.5, 0), V(11.7, -18.5, 0)), False)
sketch3.addGeometry(Part.LineSegment(V(11.7, -18.5, 0), V(11.7, -11.7, 0)), False)
sketch3.addGeometry(Part.LineSegment(V(11.7, -11.7, 0), V(18.5, -11.7, 0)), False)
sketch3.addConstraint(Sketcher.Constraint("Coincident", 0, 2, 1, 2))
sketch3.addConstraint(Sketcher.Constraint("Coincident", 1, 1, 2, 1))
sketch3.addConstraint(Sketcher.Constraint("Coincident", 2, 2, 3, 1))
sketch3.addConstraint(Sketcher.Constraint("Coincident", 3, 2, 4, 1))
sketch3.addConstraint(Sketcher.Constraint("Coincident", 4, 2, 5, 1))
sketch3.addConstraint(Sketcher.Constraint("Coincident", 5, 2, 6, 1))
sketch3.addConstraint(Sketcher.Constraint("Coincident", 6, 2, 7, 1))
sketch3.addConstraint(Sketcher.Constraint("Coincident", 7, 2, 8, 1))
sketch3.addConstraint(Sketcher.Constraint("Coincident", 8, 2, 9, 1))
sketch3.addConstraint(Sketcher.Constraint("Coincident", 9, 2, 10, 1))
sketch3.addConstraint(Sketcher.Constraint("Coincident", 10, 2, 11, 1))
sketch3.addConstraint(Sketcher.Constraint("Coincident", 11, 2, 12, 1))
sketch3.addConstraint(Sketcher.Constraint("Tangent", 12, 2, 13, 1))
sketch3.addConstraint(Sketcher.Constraint("Tangent", 13, 2, 14, 1))
sketch3.addConstraint(Sketcher.Constraint("Coincident", 14, 2, 15, 1))
sketch3.addConstraint(Sketcher.Constraint("Coincident", 15, 2, 16, 1))
sketch3.addConstraint(Sketcher.Constraint("Coincident", 16, 2, 17, 1))
sketch3.addConstraint(Sketcher.Constraint("Coincident", 17, 2, 18, 1))
sketch3.addConstraint(Sketcher.Constraint("Coincident", 18, 2, 19, 1))
sketch3.addConstraint(Sketcher.Constraint("Coincident", 19, 2, 20, 1))
sketch3.addConstraint(Sketcher.Constraint("Coincident", 20, 2, 21, 1))
sketch3.addConstraint(Sketcher.Constraint("Coincident", 21, 2, 22, 1))
sketch3.addConstraint(Sketcher.Constraint("Coincident", 22, 2, 23, 1))
sketch3.addConstraint(Sketcher.Constraint("Coincident", 23, 2, 0, 1))
sketch3.addConstraint(Sketcher.Constraint("Tangent", 24, 2, 25, 2))
sketch3.addConstraint(Sketcher.Constraint("Tangent", 25, 1, 26, 1))
sketch3.addConstraint(Sketcher.Constraint("Coincident", 26, 2, 27, 1))
sketch3.addConstraint(Sketcher.Constraint("Coincident", 27, 2, 28, 1))
sketch3.addConstraint(Sketcher.Constraint("Coincident", 28, 2, 24, 1))
sketch3.addConstraint(Sketcher.Constraint("Horizontal", 0))
sketch3.addConstraint(Sketcher.Constraint("Vertical", 2))
sketch3.addConstraint(Sketcher.Constraint("Horizontal", 3))
sketch3.addConstraint(Sketcher.Constraint("Vertical", 5))
sketch3.addConstraint(Sketcher.Constraint("Horizontal", 6))
sketch3.addConstraint(Sketcher.Constraint("Vertical", 7))
sketch3.addConstraint(Sketcher.Constraint("Horizontal", 8))
sketch3.addConstraint(Sketcher.Constraint("Vertical", 9))
sketch3.addConstraint(Sketcher.Constraint("Horizontal", 10))
sketch3.addConstraint(Sketcher.Constraint("Vertical", 11))
sketch3.addConstraint(Sketcher.Constraint("Horizontal", 12))
sketch3.addConstraint(Sketcher.Constraint("Vertical", 14))
sketch3.addConstraint(Sketcher.Constraint("Horizontal", 15))
sketch3.addConstraint(Sketcher.Constraint("Vertical", 16))
sketch3.addConstraint(Sketcher.Constraint("Horizontal", 17))
sketch3.addConstraint(Sketcher.Constraint("Vertical", 18))
sketch3.addConstraint(Sketcher.Constraint("Horizontal", 19))
sketch3.addConstraint(Sketcher.Constraint("Vertical", 20))
sketch3.addConstraint(Sketcher.Constraint("Horizontal", 21))
sketch3.addConstraint(Sketcher.Constraint("Vertical", 23))
sketch3.addConstraint(Sketcher.Constraint("Vertical", 24))
sketch3.addConstraint(Sketcher.Constraint("Horizontal", 26))
sketch3.addConstraint(Sketcher.Constraint("Vertical", 27))
sketch3.addConstraint(Sketcher.Constraint("Horizontal", 28))
sketch3.addConstraint(Sketcher.Constraint("Coincident", 1, 3, -1, 1))
sketch3.addConstraint(Sketcher.Constraint("Coincident", 25, 3, 13, 3))
sketch3.addConstraint(Sketcher.Constraint("PointOnObject", 0, 2, -1))
sketch3.addConstraint(Sketcher.Constraint("PointOnObject", 1, 1, -2))
sketch3.addConstraint(Sketcher.Constraint("Parallel", 4, 22))
sketch3.addConstraint(Sketcher.Constraint("Horizontal", 25, 3, 7, 2))
sketch3.addConstraint(Sketcher.Constraint("Horizontal", 4, 2, 27, 2))
sketch3.addConstraint(Sketcher.Constraint("Vertical", 12, 2, 17, 2))
sketch3.addConstraint(Sketcher.Constraint("Vertical", 21, 2, 26, 2))
sketch3.addConstraint(Sketcher.Constraint("Equal", 10, 15))
sketch3.addConstraint(Sketcher.Constraint("Equal", 0, 2))
sketch3.addConstraint(Sketcher.Constraint("Equal", 21, 5))
sketch3.addConstraint(Sketcher.Constraint("Equal", 19, 7))
sketch3.addConstraint(Sketcher.Constraint("Equal", 17, 9))
sketch3.addConstraint(Sketcher.Constraint("Equal", 11, 16))
sketch3.addConstraint(Sketcher.Constraint("Equal", 8, 18))
sketch3.addConstraint(Sketcher.Constraint("Equal", 3, 23))
sketch3.addConstraint(Sketcher.Constraint("Equal", 4, 22))
sketch3.addConstraint(Sketcher.Constraint("Radius", 25, 3.0))
sketch3.addConstraint(Sketcher.Constraint("Radius", 1, 3.4))
sketch3.addConstraint(Sketcher.Constraint("Radius", 13, 4.5))
sketch3.addConstraint(Sketcher.Constraint("DistanceX", 3, 1, 3, 2, 4.0))
sketch3.addConstraint(Sketcher.Constraint("DistanceX", 10, 1, 10, 2, 1.0))
sketch3.addConstraint(Sketcher.Constraint("Angle", 4, Q("-45 deg")))
sketch3.addConstraint(Sketcher.Constraint("DistanceX", 0, 2, 0, 1, 2.1))
sketch3.addConstraint(Sketcher.Constraint("DistanceX", 8, 2, 8, 1, 2.3))
sketch3.addConstraint(Sketcher.Constraint("DistanceX", 19, 1, 19, 2, 2.7))
sketch3.addConstraint(Sketcher.Constraint("DistanceY", 9, 2, -1, 1, 19.0))
sketch3.addConstraint(Sketcher.Constraint("DistanceX", 21, 2, 21, 1, 6.51))
sketch3.addConstraint(Sketcher.Constraint("DistanceX", 6, 2, 6, 1, 2.504695))
sketch3.addConstraint(Sketcher.Constraint("DistanceY", 14, 1, 14, 2, 11.534405))
pad3 = body.newObject("PartDesign::Pad", "Pad002")
pad3.Profile = sketch3
pad3.Length = 410

doc.recompute()
